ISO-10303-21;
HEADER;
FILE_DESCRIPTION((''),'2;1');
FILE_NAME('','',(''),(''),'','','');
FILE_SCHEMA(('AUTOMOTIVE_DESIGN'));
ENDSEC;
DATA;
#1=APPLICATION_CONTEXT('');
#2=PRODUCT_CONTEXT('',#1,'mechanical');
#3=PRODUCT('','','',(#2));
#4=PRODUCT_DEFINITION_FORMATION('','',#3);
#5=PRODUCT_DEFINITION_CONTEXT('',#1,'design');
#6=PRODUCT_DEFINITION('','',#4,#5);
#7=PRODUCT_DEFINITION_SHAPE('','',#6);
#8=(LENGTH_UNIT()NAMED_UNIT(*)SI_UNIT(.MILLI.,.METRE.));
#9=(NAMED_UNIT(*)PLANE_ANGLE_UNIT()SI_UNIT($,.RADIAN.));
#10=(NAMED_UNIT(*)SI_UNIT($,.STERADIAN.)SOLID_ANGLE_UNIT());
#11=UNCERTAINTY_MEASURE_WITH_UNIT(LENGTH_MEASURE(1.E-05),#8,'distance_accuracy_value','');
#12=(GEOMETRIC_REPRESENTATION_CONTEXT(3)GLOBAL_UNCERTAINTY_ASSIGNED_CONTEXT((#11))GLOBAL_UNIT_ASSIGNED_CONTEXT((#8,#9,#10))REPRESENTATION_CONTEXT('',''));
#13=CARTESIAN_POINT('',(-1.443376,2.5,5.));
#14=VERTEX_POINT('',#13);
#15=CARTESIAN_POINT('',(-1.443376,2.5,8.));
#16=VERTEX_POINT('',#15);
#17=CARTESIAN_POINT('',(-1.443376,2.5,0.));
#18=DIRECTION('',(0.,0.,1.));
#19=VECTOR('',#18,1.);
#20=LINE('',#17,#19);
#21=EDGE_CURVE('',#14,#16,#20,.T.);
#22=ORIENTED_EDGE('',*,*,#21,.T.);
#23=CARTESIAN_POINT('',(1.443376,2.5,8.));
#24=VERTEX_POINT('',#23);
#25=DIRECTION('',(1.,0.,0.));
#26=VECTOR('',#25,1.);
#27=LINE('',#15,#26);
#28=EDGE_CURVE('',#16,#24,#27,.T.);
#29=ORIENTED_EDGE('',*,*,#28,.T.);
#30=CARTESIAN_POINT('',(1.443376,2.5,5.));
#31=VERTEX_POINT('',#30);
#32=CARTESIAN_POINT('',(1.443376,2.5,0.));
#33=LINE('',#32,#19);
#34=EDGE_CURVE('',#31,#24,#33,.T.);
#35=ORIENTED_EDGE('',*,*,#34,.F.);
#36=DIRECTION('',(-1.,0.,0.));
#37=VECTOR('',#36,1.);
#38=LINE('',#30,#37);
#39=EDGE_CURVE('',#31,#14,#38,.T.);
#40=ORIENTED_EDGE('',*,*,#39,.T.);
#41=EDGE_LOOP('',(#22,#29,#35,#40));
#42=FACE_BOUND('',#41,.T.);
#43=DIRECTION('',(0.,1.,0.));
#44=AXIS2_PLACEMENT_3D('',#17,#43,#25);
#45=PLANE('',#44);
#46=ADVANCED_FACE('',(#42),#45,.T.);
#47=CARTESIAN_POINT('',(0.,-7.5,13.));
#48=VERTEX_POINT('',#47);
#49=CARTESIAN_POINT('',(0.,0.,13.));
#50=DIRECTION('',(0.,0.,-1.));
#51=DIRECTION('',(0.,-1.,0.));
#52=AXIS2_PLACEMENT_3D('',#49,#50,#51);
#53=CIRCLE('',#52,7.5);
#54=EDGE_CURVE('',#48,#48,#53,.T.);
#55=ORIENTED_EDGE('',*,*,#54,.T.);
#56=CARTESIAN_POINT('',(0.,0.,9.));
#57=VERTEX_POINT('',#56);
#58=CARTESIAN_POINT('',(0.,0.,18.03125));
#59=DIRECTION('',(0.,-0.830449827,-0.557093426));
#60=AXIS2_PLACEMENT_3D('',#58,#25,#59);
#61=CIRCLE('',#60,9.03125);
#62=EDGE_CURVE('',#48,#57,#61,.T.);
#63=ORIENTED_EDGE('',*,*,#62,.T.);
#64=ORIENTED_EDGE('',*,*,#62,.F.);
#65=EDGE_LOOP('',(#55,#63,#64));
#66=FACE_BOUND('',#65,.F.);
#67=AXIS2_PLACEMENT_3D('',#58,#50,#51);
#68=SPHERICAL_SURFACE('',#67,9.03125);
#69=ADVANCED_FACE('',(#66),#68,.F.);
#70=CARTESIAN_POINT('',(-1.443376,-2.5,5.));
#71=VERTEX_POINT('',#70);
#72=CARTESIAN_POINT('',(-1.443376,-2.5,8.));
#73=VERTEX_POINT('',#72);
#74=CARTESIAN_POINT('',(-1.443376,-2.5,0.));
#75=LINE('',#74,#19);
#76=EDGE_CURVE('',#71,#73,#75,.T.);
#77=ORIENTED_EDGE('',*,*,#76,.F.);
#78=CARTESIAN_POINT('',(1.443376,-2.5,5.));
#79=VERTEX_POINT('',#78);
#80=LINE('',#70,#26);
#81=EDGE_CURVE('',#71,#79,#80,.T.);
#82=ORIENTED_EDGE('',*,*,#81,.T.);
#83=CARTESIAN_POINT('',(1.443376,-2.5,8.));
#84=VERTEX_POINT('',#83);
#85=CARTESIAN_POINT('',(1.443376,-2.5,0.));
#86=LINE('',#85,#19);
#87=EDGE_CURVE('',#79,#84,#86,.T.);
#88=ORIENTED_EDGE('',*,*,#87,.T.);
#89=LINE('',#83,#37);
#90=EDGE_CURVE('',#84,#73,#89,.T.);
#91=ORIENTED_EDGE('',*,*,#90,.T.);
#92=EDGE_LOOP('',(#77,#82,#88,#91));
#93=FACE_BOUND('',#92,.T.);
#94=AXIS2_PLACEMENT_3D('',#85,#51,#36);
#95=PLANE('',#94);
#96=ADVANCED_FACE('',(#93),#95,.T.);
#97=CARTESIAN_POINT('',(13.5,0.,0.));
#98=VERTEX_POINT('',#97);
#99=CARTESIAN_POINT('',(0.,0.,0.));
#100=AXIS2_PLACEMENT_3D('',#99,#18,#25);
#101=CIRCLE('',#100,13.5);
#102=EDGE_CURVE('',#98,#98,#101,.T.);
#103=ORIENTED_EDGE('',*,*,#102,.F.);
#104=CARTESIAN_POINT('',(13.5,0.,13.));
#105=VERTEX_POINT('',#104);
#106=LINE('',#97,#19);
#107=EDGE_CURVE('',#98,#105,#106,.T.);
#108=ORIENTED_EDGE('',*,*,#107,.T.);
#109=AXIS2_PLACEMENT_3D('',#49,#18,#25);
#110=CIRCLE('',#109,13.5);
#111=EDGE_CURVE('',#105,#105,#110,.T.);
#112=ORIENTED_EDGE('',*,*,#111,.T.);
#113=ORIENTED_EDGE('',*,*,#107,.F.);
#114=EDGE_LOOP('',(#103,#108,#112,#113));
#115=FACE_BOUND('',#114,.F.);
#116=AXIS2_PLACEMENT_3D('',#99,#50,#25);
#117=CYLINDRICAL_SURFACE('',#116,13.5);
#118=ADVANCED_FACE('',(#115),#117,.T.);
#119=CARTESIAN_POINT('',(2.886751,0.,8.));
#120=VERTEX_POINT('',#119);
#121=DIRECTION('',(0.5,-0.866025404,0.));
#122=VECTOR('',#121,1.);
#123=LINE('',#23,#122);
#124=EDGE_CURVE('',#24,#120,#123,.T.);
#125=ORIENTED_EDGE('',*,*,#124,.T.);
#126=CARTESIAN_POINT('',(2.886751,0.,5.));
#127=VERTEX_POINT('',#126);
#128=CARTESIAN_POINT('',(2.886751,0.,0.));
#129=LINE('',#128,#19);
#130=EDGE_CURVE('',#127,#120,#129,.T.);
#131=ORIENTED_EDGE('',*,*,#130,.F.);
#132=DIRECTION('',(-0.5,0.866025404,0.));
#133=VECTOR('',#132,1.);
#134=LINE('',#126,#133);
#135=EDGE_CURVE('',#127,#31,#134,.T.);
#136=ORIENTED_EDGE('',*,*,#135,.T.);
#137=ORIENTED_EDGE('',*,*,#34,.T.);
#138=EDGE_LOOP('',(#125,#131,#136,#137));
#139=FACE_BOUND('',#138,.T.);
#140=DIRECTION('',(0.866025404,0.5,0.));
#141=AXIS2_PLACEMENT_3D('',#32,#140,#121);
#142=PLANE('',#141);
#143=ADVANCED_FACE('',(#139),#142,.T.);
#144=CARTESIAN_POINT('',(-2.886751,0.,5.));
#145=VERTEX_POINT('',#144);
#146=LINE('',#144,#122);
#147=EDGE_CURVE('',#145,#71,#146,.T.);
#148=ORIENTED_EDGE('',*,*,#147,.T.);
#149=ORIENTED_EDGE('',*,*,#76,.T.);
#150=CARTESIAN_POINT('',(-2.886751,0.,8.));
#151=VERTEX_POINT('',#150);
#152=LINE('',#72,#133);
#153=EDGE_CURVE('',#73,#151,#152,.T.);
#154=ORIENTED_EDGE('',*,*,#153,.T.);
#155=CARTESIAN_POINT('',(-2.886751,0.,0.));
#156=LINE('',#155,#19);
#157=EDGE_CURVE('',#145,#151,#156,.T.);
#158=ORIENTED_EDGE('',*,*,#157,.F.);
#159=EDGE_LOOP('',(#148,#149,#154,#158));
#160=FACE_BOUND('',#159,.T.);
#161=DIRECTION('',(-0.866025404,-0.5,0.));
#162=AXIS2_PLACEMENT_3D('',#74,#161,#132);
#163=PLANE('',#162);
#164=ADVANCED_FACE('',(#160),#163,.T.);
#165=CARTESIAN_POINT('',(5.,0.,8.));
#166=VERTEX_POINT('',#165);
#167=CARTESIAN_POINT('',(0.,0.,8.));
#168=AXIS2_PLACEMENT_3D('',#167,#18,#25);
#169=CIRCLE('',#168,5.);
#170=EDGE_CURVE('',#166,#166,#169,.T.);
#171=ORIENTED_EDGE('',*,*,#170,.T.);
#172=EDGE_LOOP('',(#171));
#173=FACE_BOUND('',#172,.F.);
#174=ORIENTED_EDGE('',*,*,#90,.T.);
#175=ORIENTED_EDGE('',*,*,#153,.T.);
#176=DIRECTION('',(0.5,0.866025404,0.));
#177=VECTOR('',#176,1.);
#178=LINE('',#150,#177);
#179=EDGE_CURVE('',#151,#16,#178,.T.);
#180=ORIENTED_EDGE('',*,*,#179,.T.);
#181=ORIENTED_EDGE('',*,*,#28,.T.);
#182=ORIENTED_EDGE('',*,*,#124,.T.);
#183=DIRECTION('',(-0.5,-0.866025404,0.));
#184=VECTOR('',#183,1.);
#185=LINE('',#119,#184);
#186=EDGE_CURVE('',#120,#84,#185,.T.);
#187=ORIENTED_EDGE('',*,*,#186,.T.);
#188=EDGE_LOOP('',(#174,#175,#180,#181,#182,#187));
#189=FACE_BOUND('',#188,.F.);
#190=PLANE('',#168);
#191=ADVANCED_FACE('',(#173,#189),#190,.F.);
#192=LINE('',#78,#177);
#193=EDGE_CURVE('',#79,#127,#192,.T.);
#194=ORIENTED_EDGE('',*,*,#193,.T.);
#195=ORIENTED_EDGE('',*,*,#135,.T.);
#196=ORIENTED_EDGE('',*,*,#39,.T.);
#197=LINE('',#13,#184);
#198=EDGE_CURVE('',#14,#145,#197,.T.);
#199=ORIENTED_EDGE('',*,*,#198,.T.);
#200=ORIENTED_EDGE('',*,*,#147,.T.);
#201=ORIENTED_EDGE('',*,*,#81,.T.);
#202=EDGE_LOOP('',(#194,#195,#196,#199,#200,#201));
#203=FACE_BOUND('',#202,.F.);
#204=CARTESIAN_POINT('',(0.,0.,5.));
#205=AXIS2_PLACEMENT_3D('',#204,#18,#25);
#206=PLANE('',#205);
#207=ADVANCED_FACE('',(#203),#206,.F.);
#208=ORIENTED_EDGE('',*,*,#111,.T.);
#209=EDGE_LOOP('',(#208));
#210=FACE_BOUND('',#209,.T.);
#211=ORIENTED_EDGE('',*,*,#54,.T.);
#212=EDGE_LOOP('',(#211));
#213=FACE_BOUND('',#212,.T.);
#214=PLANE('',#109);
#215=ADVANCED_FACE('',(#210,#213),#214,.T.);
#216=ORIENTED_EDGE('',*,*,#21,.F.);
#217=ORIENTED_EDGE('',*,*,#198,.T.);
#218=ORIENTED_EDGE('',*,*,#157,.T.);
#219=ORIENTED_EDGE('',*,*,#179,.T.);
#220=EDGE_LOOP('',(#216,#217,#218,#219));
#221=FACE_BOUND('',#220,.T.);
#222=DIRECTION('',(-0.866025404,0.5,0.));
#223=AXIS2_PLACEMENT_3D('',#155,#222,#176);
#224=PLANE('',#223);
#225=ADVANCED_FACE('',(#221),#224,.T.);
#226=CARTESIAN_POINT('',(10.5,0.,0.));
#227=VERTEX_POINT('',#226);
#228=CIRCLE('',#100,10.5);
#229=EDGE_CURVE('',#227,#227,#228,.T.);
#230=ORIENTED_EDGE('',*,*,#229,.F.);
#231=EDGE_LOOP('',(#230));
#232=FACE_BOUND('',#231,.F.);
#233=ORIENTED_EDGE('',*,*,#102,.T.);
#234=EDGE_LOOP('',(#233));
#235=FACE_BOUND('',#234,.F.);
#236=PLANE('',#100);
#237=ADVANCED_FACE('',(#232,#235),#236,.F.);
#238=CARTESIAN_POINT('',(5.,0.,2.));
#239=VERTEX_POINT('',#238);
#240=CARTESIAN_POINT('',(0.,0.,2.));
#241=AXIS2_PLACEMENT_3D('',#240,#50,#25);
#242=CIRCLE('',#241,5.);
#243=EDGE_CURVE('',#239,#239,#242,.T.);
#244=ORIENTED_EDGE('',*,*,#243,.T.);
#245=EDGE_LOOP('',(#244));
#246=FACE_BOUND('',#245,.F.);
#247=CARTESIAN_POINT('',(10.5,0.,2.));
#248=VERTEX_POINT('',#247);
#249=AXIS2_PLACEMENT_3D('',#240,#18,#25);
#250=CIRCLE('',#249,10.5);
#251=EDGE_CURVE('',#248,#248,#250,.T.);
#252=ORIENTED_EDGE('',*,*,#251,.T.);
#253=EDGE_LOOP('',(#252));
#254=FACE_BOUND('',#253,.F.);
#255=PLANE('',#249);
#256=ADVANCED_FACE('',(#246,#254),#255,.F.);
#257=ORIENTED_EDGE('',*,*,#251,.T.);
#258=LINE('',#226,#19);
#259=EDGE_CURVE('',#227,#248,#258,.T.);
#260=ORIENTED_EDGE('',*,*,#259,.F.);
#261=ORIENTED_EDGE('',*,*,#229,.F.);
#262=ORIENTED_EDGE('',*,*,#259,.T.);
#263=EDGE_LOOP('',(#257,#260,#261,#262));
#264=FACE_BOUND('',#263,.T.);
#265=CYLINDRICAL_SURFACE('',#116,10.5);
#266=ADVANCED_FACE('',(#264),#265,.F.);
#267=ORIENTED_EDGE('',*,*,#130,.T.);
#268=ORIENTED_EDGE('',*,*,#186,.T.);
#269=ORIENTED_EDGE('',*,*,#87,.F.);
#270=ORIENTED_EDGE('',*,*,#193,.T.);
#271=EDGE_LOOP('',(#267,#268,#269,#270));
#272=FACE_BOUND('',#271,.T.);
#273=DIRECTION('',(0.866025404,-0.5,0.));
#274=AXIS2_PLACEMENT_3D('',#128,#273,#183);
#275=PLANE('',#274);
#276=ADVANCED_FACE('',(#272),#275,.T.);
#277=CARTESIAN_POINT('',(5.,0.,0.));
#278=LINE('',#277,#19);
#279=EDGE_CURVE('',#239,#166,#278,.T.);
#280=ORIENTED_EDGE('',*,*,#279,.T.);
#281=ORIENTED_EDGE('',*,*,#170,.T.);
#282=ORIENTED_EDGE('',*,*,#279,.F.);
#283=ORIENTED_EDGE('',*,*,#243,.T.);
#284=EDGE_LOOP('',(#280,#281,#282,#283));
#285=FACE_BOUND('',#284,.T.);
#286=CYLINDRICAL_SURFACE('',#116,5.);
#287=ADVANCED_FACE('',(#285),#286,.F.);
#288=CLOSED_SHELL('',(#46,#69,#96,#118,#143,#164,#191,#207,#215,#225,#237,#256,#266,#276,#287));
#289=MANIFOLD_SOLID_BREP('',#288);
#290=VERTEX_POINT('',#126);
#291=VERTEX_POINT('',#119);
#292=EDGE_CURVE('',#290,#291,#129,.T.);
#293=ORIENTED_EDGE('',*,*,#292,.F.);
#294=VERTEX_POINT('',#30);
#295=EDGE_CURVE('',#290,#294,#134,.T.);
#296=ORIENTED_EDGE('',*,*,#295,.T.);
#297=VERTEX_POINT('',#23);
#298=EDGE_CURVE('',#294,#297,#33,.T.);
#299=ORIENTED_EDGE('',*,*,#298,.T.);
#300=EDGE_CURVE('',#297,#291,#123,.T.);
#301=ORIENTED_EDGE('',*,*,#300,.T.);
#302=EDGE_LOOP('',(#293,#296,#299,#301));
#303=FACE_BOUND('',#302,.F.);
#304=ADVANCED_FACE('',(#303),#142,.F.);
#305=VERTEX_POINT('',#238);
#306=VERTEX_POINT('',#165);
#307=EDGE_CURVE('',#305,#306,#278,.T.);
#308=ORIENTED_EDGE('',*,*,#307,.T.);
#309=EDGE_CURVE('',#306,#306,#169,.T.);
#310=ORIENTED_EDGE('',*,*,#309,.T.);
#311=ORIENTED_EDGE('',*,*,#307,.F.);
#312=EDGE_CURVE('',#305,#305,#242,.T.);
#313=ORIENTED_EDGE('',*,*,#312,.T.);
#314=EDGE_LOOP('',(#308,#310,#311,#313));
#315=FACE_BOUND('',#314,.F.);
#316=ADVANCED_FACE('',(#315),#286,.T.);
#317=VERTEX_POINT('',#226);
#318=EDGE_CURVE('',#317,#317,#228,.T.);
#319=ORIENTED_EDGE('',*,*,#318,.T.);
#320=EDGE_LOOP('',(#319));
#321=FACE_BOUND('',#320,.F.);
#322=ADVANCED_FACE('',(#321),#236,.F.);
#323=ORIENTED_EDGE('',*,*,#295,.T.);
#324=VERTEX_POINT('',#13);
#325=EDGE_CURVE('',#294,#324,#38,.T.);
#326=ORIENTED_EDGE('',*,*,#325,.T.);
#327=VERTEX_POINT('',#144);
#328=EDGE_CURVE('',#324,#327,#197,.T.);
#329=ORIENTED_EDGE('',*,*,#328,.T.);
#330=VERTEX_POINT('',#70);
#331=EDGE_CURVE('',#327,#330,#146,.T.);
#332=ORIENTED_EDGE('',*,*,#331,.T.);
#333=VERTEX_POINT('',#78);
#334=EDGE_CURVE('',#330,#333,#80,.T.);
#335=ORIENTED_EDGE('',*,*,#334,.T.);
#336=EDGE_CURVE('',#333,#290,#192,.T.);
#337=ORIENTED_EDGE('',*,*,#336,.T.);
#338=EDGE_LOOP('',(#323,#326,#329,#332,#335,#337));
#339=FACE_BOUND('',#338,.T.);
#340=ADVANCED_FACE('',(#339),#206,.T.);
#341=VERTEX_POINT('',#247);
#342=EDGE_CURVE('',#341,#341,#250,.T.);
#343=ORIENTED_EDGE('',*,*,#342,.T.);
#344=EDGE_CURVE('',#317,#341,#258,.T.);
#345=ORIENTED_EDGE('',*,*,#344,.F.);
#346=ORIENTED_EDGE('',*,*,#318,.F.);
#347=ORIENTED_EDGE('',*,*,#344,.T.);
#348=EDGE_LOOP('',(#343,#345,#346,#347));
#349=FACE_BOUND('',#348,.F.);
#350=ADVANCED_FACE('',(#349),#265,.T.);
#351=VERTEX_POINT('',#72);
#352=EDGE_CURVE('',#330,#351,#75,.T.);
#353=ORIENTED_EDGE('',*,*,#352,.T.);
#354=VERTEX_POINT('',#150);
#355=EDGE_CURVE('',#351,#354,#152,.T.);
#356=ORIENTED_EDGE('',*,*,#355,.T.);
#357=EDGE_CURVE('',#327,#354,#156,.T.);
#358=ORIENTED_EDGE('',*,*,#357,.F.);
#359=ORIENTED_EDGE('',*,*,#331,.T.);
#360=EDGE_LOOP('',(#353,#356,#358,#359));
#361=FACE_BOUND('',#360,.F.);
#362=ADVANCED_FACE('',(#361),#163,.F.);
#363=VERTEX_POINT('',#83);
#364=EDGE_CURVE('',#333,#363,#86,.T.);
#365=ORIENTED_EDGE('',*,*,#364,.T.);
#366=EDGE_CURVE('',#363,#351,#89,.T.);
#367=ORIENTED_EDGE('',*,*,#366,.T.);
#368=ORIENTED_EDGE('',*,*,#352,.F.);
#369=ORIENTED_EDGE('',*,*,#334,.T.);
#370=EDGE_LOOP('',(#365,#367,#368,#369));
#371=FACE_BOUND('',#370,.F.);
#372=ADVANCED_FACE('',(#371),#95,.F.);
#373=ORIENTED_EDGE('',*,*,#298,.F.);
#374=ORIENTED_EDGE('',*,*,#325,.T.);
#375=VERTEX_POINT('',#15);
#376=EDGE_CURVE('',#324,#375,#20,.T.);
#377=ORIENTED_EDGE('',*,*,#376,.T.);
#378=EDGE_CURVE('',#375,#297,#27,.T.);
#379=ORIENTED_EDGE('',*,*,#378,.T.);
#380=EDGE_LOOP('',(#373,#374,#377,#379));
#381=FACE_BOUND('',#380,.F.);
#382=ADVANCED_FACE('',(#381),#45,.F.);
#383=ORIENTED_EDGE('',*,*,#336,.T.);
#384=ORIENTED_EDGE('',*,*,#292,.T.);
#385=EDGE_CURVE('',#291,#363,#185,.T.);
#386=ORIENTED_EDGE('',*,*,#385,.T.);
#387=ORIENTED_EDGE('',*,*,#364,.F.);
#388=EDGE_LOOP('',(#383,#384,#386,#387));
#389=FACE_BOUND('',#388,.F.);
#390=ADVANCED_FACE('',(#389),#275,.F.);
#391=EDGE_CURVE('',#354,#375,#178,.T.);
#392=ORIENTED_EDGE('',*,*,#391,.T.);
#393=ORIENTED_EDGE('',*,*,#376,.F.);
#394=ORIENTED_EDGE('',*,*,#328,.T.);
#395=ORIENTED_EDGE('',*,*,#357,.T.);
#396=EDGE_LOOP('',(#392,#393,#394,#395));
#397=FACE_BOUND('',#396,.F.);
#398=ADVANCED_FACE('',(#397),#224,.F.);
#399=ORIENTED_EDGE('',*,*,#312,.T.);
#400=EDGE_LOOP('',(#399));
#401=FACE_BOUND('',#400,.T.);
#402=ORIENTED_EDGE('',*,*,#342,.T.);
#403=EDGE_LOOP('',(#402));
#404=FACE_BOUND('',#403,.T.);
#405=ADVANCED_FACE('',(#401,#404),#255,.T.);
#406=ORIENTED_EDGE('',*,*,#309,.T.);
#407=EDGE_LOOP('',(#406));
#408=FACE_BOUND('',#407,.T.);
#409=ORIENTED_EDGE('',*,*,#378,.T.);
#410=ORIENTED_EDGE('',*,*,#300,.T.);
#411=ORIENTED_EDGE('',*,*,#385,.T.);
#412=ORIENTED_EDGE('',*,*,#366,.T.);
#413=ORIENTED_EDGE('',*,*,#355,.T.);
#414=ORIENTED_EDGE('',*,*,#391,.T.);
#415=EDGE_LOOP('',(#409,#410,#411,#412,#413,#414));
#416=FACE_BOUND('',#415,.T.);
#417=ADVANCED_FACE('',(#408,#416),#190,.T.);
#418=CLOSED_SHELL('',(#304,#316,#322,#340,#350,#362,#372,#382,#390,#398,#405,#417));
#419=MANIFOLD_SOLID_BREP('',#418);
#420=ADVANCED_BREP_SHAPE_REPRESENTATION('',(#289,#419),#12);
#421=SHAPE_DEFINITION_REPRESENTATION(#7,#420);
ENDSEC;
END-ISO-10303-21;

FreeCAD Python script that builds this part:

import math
import FreeCAD as App
import Part
import Sketcher
from FreeCAD import Vector
Q = App.Units.Quantity


def add_polygon(sketch, points):
    """Adds a closed chain of lines whose ends are joined by coincident constraints."""
    first, n = sketch.GeometryCount, len(points)
    for a, b in zip(points, points[1:] + points[:1]):
        sketch.addGeometry(Part.LineSegment(App.Vector(*a, 0), App.Vector(*b, 0)), False)
    for i in range(n):
        sketch.addConstraint(Sketcher.Constraint("Coincident", first + i, 2, first + (i + 1) % n, 1))

doc = App.newDocument("Part")
body = doc.addObject("PartDesign::Body", "Body")

sketch1 = body.newObject("Sketcher::SketchObject", "Sketch")
sketch1.AttachmentSupport = (doc.getObject("XY_Plane"), [""])
sketch1.MapMode = "FlatFace"
sketch1.addGeometry(Part.Circle(Vector(0, 0, 0), Vector(0, 0, 1), 10), False)
sketch1.addConstraint([
    Sketcher.Constraint("Coincident", 0, 3, -1, 1),
    Sketcher.Constraint("Diameter", 0, 21.0),
])
pad1 = body.newObject("PartDesign::Pad", "Pad")
pad1.Profile = sketch1
pad1.Length = 2

sketch2 = body.newObject("Sketcher::SketchObject", "Sketch001")
sketch2.AttachmentSupport = (doc.getObject("XY_Plane"), [""])
sketch2.MapMode = "FlatFace"
sketch2.addGeometry(Part.Circle(Vector(0, 0, 0), Vector(0, 0, 1), 5), False)
add_polygon(sketch2, [(-1.4, -2.5), (-2.9, 0), (-1.4, 2.5), (1.4, 2.5), (2.9, 0), (1.4, -2.5)])
sketch2.addConstraint([
    Sketcher.Constraint("Horizontal", 3),
    Sketcher.Constraint("Horizontal", 6),
    Sketcher.Constraint("Coincident", 0, 3, -1, 1),
    Sketcher.Constraint("Symmetric", 1, 2, 4, 2, -1, 1),
    Sketcher.Constraint("Symmetric", 2, 2, 5, 2, -1, 1),
    Sketcher.Constraint("PointOnObject", 1, 2, -1),
    Sketcher.Constraint("Parallel", 1, 4),
    Sketcher.Constraint("Vertical", 3, 2, 5, 2),
    Sketcher.Constraint("Diameter", 0, 10.0),
    Sketcher.Constraint("Angle", 1, Q("120 deg")),
    Sketcher.Constraint("DistanceY", 5, 2, 3, 2, 5.0),
    Sketcher.Constraint("DistanceX", 3, 1, 3, 2, 2.886751),
])
pad2 = body.newObject("PartDesign::Pad", "Pad001")
pad2.Profile = sketch2
pad2.Length = 8

sketch3 = body.newObject("Sketcher::SketchObject", "Sketch002")
sketch3.AttachmentSupport = (doc.getObject("XY_Plane"), [""])
sketch3.MapMode = "FlatFace"
add_polygon(sketch3, [(1.4, 2.5), (-1.4, 2.5), (-2.9, 0), (-1.4, -2.5), (1.4, -2.5), (2.9, 0)])
sketch3.addConstraint([
    Sketcher.Constraint("Horizontal", 0),
    Sketcher.Constraint("Horizontal", 3),
    Sketcher.Constraint("Symmetric", 0, 2, 3, 2, -1, 1),
    Sketcher.Constraint("Symmetric", 1, 2, 4, 2, -1, 1),
    Sketcher.Constraint("PointOnObject", 1, 2, -1),
    Sketcher.Constraint("Parallel", 2, 5),
    Sketcher.Constraint("Vertical", 0, 2, 2, 2),
    Sketcher.Constraint("Angle", 1, Q("-120 deg")),
    Sketcher.Constraint("DistanceY", 2, 2, 0, 2, 5.0),
    Sketcher.Constraint("DistanceX", 0, 2, 0, 1, 2.886751),
])
pad3 = body.newObject("PartDesign::Pad", "Pad002")
pad3.Profile = sketch3
pad3.Length = 5
body2 = doc.addObject("PartDesign::Body", "Body001")

sketch4 = body2.newObject("Sketcher::SketchObject", "Sketch003")
sketch4.AttachmentSupport = (doc.getObject("XY_Plane001"), [""])
sketch4.MapMode = "FlatFace"
sketch4.addGeometry(Part.Circle(Vector(0, 0, 0), Vector(0, 0, 1), 14), False)
sketch4.addConstraint([
    Sketcher.Constraint("Coincident", 0, 3, -1, 1),
    Sketcher.Constraint("Diameter", 0, 27.0),
])
pad4 = body2.newObject("PartDesign::Pad", "Pad003")
pad4.Profile = sketch4
pad4.Length = 13
doc.recompute()

body3 = doc.addObject("PartDesign::Body", "Body002")
body3.BaseFeature = body
boolean = body2.newObject("PartDesign::Boolean", "Boolean")
boolean.Type = "Cut"
boolean.addObjects([body3])
doc.recompute()

sketch5 = body2.newObject("Sketcher::SketchObject", "Sketch004")
sketch5.AttachmentSupport = (doc.getObject("YZ_Plane001"), [""])
sketch5.MapMode = "FlatFace"
sketch5.addGeometry([
    Part.LineSegment(Vector(0, 9, 0), Vector(0, 13, 0)),
    Part.LineSegment(Vector(0, 13, 0), Vector(-7.5, 13, 0)),
    Part.ArcOfCircle(Part.Circle(Vector(0, 18, 0), Vector(0, 0, 1), 9), math.radians(-146), math.radians(-90)),
], False)
sketch5.addConstraint([
    Sketcher.Constraint("Coincident", 0, 2, 1, 1),
    Sketcher.Constraint("Coincident", 1, 2, 2, 1),
    Sketcher.Constraint("Coincident", 2, 2, 0, 1),
    Sketcher.Constraint("Vertical", 0),
    Sketcher.Constraint("Horizontal", 1),
    Sketcher.Constraint("PointOnObject", 2, 3, -2),
    Sketcher.Constraint("PointOnObject", 0, 2, -2),
    Sketcher.Constraint("DistanceY", 0, 1, 0, 2, 4.0),
    Sketcher.Constraint("DistanceX", 1, 2, 1, 1, 7.5),
    Sketcher.Constraint("DistanceY", -1, 1, 0, 2, 13.0),
])
groove = body2.newObject("PartDesign::Groove", "Groove")
groove.Profile = sketch5
groove.ReferenceAxis = (sketch5, ["V_Axis"])
groove.Angle = 360

doc.recompute()
